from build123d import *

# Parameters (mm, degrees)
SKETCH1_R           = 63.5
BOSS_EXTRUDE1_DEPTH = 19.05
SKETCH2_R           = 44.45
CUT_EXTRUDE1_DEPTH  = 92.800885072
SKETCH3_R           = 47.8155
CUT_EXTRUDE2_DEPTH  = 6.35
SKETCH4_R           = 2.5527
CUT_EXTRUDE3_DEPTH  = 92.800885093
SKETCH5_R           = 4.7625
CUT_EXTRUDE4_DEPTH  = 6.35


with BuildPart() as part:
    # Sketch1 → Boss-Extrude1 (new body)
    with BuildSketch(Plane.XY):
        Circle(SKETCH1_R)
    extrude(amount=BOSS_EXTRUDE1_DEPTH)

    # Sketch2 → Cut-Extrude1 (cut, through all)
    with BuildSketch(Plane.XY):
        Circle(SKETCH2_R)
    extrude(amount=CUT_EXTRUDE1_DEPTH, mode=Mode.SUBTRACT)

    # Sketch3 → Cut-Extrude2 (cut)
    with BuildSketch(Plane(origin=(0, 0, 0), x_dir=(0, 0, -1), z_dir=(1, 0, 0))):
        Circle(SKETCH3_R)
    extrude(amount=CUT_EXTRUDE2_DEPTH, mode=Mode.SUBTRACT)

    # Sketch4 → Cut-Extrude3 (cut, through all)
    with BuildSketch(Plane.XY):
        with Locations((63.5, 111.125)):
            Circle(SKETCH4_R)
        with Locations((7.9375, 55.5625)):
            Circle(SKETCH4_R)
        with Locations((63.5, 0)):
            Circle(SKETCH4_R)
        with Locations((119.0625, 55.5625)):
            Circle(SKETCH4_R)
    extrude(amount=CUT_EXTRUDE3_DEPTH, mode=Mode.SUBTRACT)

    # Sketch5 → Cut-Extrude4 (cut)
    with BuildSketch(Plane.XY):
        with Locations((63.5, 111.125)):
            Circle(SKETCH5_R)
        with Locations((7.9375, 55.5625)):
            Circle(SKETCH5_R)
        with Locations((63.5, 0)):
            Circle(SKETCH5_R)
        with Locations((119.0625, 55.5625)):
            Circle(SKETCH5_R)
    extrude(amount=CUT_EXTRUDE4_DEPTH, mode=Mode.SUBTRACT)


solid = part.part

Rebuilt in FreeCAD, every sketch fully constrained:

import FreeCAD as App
import Part
import Sketcher
Q = App.Units.Quantity

doc = App.newDocument("Part")
body = doc.addObject("PartDesign::Body", "Body")

# Sketch on XY plane
sketch1 = body.newObject("Sketcher::SketchObject", "Sketch")
sketch1.AttachmentSupport = (doc.getObject("XY_Plane"), [""])
sketch1.MapMode = "FlatFace"
sketch1.addGeometry(Part.Circle(App.Vector(0, 0, 0), App.Vector(0, 0, 1), 64), False)
sketch1.addConstraint(Sketcher.Constraint("Coincident", 0, 3, -1, 1))
sketch1.addConstraint(Sketcher.Constraint("Diameter", 0, Q("5 in")))
pad1 = body.newObject("PartDesign::Pad", "Pad")
pad1.Profile = sketch1
pad1.Length = Q("0.75 in")

# Sketch on XY plane
sketch2 = body.newObject("Sketcher::SketchObject", "Sketch001")
sketch2.AttachmentSupport = (doc.getObject("XY_Plane"), [""])
sketch2.MapMode = "FlatFace"
sketch2.addGeometry(Part.Circle(App.Vector(0, 0, 0), App.Vector(0, 0, 1), 44), False)
sketch2.addConstraint(Sketcher.Constraint("Coincident", 0, 3, -1, 1))
sketch2.addConstraint(Sketcher.Constraint("Diameter", 0, Q("3.5 in")))
pocket1 = body.newObject("PartDesign::Pocket", "Pocket")
pocket1.Profile = sketch2
pocket1.Type = "ThroughAll"
pocket1.Reversed = True

# Sketch on YZ plane
sketch3 = body.newObject("Sketcher::SketchObject", "Sketch002")
sketch3.AttachmentSupport = (doc.getObject("YZ_Plane"), [""])
sketch3.MapMode = "FlatFace"
sketch3.addGeometry(Part.Circle(App.Vector(0, 0, 0), App.Vector(0, 0, 1), 48), False)
sketch3.addConstraint(Sketcher.Constraint("Coincident", 0, 3, -1, 1))
sketch3.addConstraint(Sketcher.Constraint("Diameter", 0, Q("3.765 in")))
pocket2 = body.newObject("PartDesign::Pocket", "Pocket001")
pocket2.Profile = sketch3
pocket2.Length = Q("0.25 in")
pocket2.Reversed = True

# Sketch on XY plane
sketch4 = body.newObject("Sketcher::SketchObject", "Sketch003")
sketch4.AttachmentSupport = (doc.getObject("XY_Plane"), [""])
sketch4.MapMode = "FlatFace"
sketch4.addGeometry(Part.Circle(App.Vector(63.5, 111.1, 0), App.Vector(0, 0, 1), 2.6), False)
sketch4.addGeometry(Part.Circle(App.Vector(7.9, 55.6, 0), App.Vector(0, 0, 1), 2.6), False)
sketch4.addGeometry(Part.Circle(App.Vector(63.5, 0, 0), App.Vector(0, 0, 1), 2.6), False)
sketch4.addGeometry(Part.Circle(App.Vector(119.1, 55.6, 0), App.Vector(0, 0, 1), 2.6), False)
sketch4.addConstraint(Sketcher.Constraint("Equal", 0, 1))
sketch4.addConstraint(Sketcher.Constraint("Equal", 1, 2))
sketch4.addConstraint(Sketcher.Constraint("Equal", 2, 3))
sketch4.addConstraint(Sketcher.Constraint("PointOnObject", 2, 3, -1))
sketch4.addConstraint(Sketcher.Constraint("Horizontal", 1, 3, 3, 3))
sketch4.addConstraint(Sketcher.Constraint("Vertical", 0, 3, 2, 3))
sketch4.addConstraint(Sketcher.Constraint("Diameter", 0, Q("0.201 in")))
sketch4.addConstraint(Sketcher.Constraint("DistanceX", -1, 1, 0, 3, Q("2.5 in")))
sketch4.addConstraint(Sketcher.Constraint("DistanceY", -1, 1, 0, 3, Q("4.375 in")))
sketch4.addConstraint(Sketcher.Constraint("DistanceX", -1, 1, 1, 3, Q("0.3125 in")))
sketch4.addConstraint(Sketcher.Constraint("DistanceY", -1, 1, 1, 3, Q("2.1875 in")))
sketch4.addConstraint(Sketcher.Constraint("DistanceX", -1, 1, 3, 3, Q("4.6875 in")))
pocket3 = body.newObject("PartDesign::Pocket", "Pocket002")
pocket3.Profile = sketch4
pocket3.Type = "ThroughAll"
pocket3.Reversed = True

# Sketch on XY plane
sketch5 = body.newObject("Sketcher::SketchObject", "Sketch004")
sketch5.AttachmentSupport = (doc.getObject("XY_Plane"), [""])
sketch5.MapMode = "FlatFace"
sketch5.addGeometry(Part.Circle(App.Vector(63.5, 111.1, 0), App.Vector(0, 0, 1), 4.8), False)
sketch5.addGeometry(Part.Circle(App.Vector(7.9, 55.6, 0), App.Vector(0, 0, 1), 4.8), False)
sketch5.addGeometry(Part.Circle(App.Vector(63.5, 0, 0), App.Vector(0, 0, 1), 4.8), False)
sketch5.addGeometry(Part.Circle(App.Vector(119.1, 55.6, 0), App.Vector(0, 0, 1), 4.8), False)
sketch5.addConstraint(Sketcher.Constraint("Equal", 0, 1))
sketch5.addConstraint(Sketcher.Constraint("Equal", 1, 2))
sketch5.addConstraint(Sketcher.Constraint("Equal", 2, 3))
sketch5.addConstraint(Sketcher.Constraint("PointOnObject", 2, 3, -1))
sketch5.addConstraint(Sketcher.Constraint("Horizontal", 1, 3, 3, 3))
sketch5.addConstraint(Sketcher.Constraint("Vertical", 0, 3, 2, 3))
sketch5.addConstraint(Sketcher.Constraint("Diameter", 0, Q("0.375 in")))
sketch5.addConstraint(Sketcher.Constraint("DistanceX", -1, 1, 0, 3, Q("2.5 in")))
sketch5.addConstraint(Sketcher.Constraint("DistanceY", -1, 1, 0, 3, Q("4.375 in")))
sketch5.addConstraint(Sketcher.Constraint("DistanceX", -1, 1, 1, 3, Q("0.3125 in")))
sketch5.addConstraint(Sketcher.Constraint("DistanceY", -1, 1, 1, 3, Q("2.1875 in")))
sketch5.addConstraint(Sketcher.Constraint("DistanceX", -1, 1, 3, 3, Q("4.6875 in")))
pocket4 = body.newObject("PartDesign::Pocket", "Pocket003")
pocket4.Profile = sketch5
pocket4.Length = Q("0.25 in")
pocket4.Reversed = True

doc.recompute()
